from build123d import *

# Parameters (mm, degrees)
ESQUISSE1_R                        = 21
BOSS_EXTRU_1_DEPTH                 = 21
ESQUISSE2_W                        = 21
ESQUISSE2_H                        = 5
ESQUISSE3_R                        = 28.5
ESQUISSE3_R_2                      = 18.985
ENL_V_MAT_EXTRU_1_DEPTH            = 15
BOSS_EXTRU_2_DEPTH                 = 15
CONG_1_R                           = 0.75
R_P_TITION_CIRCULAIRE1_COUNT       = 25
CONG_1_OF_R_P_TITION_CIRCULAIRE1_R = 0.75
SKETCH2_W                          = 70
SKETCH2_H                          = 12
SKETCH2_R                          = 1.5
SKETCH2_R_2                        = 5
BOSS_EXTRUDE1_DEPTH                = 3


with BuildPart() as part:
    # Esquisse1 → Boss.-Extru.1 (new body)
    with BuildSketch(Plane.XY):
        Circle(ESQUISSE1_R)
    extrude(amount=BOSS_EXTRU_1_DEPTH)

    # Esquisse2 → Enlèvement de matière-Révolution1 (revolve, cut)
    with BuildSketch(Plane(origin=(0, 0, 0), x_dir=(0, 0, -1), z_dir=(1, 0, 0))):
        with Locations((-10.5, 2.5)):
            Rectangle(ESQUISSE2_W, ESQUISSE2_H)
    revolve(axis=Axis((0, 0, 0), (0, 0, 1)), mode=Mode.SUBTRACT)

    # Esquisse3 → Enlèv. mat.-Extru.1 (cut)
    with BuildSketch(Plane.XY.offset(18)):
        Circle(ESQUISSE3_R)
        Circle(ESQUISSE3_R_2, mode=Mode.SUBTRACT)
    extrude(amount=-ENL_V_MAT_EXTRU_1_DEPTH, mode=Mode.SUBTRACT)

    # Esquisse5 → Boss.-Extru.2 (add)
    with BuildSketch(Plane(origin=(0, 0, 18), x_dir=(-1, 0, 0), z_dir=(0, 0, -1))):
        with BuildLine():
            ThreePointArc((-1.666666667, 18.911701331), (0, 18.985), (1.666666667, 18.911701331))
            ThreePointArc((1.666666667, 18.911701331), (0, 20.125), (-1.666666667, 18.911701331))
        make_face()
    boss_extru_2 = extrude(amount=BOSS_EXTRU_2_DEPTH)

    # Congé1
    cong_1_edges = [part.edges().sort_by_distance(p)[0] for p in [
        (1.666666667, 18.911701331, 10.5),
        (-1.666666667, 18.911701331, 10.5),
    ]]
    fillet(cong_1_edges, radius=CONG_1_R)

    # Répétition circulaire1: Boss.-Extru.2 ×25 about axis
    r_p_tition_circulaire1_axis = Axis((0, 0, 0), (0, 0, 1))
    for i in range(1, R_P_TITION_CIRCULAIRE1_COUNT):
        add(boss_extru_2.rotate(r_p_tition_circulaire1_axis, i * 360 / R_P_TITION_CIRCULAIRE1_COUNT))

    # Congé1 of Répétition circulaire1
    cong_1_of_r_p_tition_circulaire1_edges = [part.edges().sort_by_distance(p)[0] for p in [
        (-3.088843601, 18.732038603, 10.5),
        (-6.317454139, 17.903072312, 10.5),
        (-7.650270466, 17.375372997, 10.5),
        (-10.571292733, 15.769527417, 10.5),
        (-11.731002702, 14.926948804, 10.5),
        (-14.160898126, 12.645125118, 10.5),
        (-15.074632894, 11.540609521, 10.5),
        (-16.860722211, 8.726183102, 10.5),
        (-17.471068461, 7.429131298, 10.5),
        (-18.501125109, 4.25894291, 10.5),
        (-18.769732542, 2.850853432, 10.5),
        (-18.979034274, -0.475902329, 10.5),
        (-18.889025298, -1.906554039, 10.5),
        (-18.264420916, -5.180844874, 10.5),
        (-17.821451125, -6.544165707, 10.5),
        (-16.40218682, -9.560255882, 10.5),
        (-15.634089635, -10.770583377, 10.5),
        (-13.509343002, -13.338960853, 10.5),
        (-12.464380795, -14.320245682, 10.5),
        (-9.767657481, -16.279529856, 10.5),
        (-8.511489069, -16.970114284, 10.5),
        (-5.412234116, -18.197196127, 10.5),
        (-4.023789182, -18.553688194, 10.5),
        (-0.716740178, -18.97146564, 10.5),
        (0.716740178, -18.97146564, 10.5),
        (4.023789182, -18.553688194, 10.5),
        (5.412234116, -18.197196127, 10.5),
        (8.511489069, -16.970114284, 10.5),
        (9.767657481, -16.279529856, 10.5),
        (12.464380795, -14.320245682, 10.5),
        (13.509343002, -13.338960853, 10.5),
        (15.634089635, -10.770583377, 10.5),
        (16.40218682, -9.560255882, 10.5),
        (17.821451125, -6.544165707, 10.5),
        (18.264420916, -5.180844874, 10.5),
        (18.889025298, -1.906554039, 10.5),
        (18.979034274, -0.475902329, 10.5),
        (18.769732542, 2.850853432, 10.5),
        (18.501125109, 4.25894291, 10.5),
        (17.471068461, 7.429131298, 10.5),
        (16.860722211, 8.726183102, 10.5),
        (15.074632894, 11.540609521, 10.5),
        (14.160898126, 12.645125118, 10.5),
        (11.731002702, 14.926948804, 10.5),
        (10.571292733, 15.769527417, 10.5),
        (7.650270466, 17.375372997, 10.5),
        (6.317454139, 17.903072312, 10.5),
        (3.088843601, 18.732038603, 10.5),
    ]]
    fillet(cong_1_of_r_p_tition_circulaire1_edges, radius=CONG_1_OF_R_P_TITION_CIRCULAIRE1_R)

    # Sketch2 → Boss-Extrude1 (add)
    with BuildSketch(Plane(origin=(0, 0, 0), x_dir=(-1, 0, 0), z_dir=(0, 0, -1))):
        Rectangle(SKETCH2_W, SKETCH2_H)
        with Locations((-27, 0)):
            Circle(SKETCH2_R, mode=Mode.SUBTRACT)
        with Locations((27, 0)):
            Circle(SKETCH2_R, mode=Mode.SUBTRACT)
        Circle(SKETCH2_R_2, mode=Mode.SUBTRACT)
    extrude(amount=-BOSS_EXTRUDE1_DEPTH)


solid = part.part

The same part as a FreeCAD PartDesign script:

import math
import FreeCAD as App
import Part
import Sketcher

V = App.Vector
Q = App.Units.Quantity


def edges_at(feature, points):
    """Names of the edges that pass closest to the given points."""
    edges = feature.Shape.Edges
    near = lambda p: min(range(len(edges)), key=lambda i: edges[i].distToShape(Part.Vertex(*p))[0])
    return sorted({f"Edge{near(p) + 1}" for p in points})

doc = App.newDocument("Part")
body = doc.addObject("PartDesign::Body", "Body")

# Sketch on XY plane
sketch1 = body.newObject("Sketcher::SketchObject", "Sketch")
sketch1.AttachmentSupport = (doc.getObject("XY_Plane"), [""])
sketch1.MapMode = "FlatFace"
sketch1.addGeometry(Part.Circle(V(0, 0, 0), V(0, 0, 1), 21), False)
sketch1.addConstraint([
    Sketcher.Constraint("Coincident", 0, 3, -1, 1),
    Sketcher.Constraint("Diameter", 0, Q("42 mm")),
])
pad1 = body.newObject("PartDesign::Pad", "Pad")
pad1.Profile = sketch1
pad1.Length = 21

# Sketch on YZ plane
sketch2 = body.newObject("Sketcher::SketchObject", "Sketch001")
sketch2.AttachmentSupport = (doc.getObject("YZ_Plane"), [""])
sketch2.MapMode = "FlatFace"
sketch2.addGeometry([
    Part.LineSegment(V(5, 21, 0), V(0, 21, 0)),
    Part.LineSegment(V(0, 21, 0), V(0, 0, 0)),
    Part.LineSegment(V(0, 0, 0), V(5, 0, 0)),
    Part.LineSegment(V(5, 0, 0), V(5, 21, 0)),
], False)
sketch2.addConstraint([
    Sketcher.Constraint("Coincident", 0, 2, 1, 1),
    Sketcher.Constraint("Coincident", 1, 2, 2, 1),
    Sketcher.Constraint("Coincident", 2, 2, 3, 1),
    Sketcher.Constraint("Coincident", 3, 2, 0, 1),
    Sketcher.Constraint("Horizontal", 0),
    Sketcher.Constraint("Vertical", 1),
    Sketcher.Constraint("Horizontal", 2),
    Sketcher.Constraint("Vertical", 3),
    Sketcher.Constraint("Coincident", 1, 2, -1, 1),
    Sketcher.Constraint("DistanceX", 0, 2, 0, 1, Q("5 mm")),
    Sketcher.Constraint("DistanceY", 1, 2, 1, 1, Q("21 mm")),
])
groove = body.newObject("PartDesign::Groove", "Groove")
groove.Profile = sketch2
groove.ReferenceAxis = (sketch2, ["V_Axis"])
groove.Angle = 360

# Sketch on XY plane
sketch3 = body.newObject("Sketcher::SketchObject", "Sketch002")
sketch3.AttachmentSupport = (doc.getObject("XY_Plane"), [""])
sketch3.MapMode = "FlatFace"
sketch3.AttachmentOffset = App.Placement(V(0, 0, 18), App.Rotation())
sketch3.addGeometry([
    Part.Circle(V(0, 0, 0), V(0, 0, 1), 28),
    Part.Circle(V(0, 0, 0), V(0, 0, 1), 19),
], False)
sketch3.addConstraint([
    Sketcher.Constraint("Coincident", 0, 3, -1, 1),
    Sketcher.Constraint("Coincident", 1, 3, -1, 1),
    Sketcher.Constraint("Diameter", 0, Q("57 mm")),
    Sketcher.Constraint("Diameter", 1, Q("37.97 mm")),
])
pocket1 = body.newObject("PartDesign::Pocket", "Pocket")
pocket1.Profile = sketch3
pocket1.Length = 15

# Sketch on XY plane
sketch4 = body.newObject("Sketcher::SketchObject", "Sketch003")
sketch4.AttachmentSupport = (doc.getObject("XY_Plane"), [""])
sketch4.MapMode = "FlatFace"
sketch4.AttachmentOffset = App.Placement(V(0, 0, 18), App.Rotation())
sketch4.addGeometry([
    Part.ArcOfCircle(Part.Circle(V(0, 0, 0), V(0, 0, 1), 19), math.radians(84.96), math.radians(95.04)),
    Part.ArcOfCircle(Part.Circle(V(0, 18.4, 0), V(0, 0, 1), 1.8), math.radians(18), math.radians(162)),
], False)
sketch4.addConstraint([
    Sketcher.Constraint("Coincident", 0, 1, 1, 1),
    Sketcher.Constraint("Coincident", 1, 2, 0, 2),
    Sketcher.Constraint("Coincident", 0, 3, -1, 1),
    Sketcher.Constraint("PointOnObject", 1, 3, -2),
    Sketcher.Constraint("Radius", 0, Q("18.985 mm")),
    Sketcher.Constraint("Radius", 1, Q("1.751371 mm")),
    Sketcher.Constraint("DistanceY", -1, 1, 0, 1, Q("18.911701 mm")),
])
pad2 = body.newObject("PartDesign::Pad", "Pad001")
pad2.Profile = sketch4
pad2.Length = 15
pad2.Reversed = True
doc.recompute()

fillet = body.newObject("PartDesign::Fillet", "Fillet")
fillet.Base = (pad2, edges_at(pad2, [(1.667, 18.912, 10.5), (-1.667, 18.912, 10.5)]))
fillet.Radius = 0.75
doc.recompute()

polarpattern = body.newObject("PartDesign::PolarPattern", "PolarPattern")
polarpattern.Originals = [pad2]
polarpattern.Axis = (doc.getObject("Z_Axis"), [""])
polarpattern.Angle = 360
polarpattern.Occurrences = 25
body.Tip = polarpattern
doc.recompute()

fillet2 = body.newObject("PartDesign::Fillet", "Fillet001")
fillet2.Base = (polarpattern, edges_at(polarpattern, [
    (-3.089, 18.732, 10.5),
    (-6.317, 17.903, 10.5),
    (-7.65, 17.375, 10.5),
    (-10.571, 15.77, 10.5),
    (-11.731, 14.927, 10.5),
    (-14.161, 12.645, 10.5),
    (-15.075, 11.541, 10.5),
    (-16.861, 8.726, 10.5),
    (-17.471, 7.429, 10.5),
    (-18.501, 4.259, 10.5),
    (-18.77, 2.851, 10.5),
    (-18.979, -0.476, 10.5),
    (-18.889, -1.907, 10.5),
    (-18.264, -5.181, 10.5),
    (-17.821, -6.544, 10.5),
    (-16.402, -9.56, 10.5),
    (-15.634, -10.771, 10.5),
    (-13.509, -13.339, 10.5),
    (-12.464, -14.32, 10.5),
    (-9.768, -16.28, 10.5),
    (-8.511, -16.97, 10.5),
    (-5.412, -18.197, 10.5),
    (-4.024, -18.554, 10.5),
    (-0.717, -18.971, 10.5),
    (0.717, -18.971, 10.5),
    (4.024, -18.554, 10.5),
    (5.412, -18.197, 10.5),
    (8.511, -16.97, 10.5),
    (9.768, -16.28, 10.5),
    (12.464, -14.32, 10.5),
    (13.509, -13.339, 10.5),
    (15.634, -10.771, 10.5),
    (16.402, -9.56, 10.5),
    (17.821, -6.544, 10.5),
    (18.264, -5.181, 10.5),
    (18.889, -1.907, 10.5),
    (18.979, -0.476, 10.5),
    (18.77, 2.851, 10.5),
    (18.501, 4.259, 10.5),
    (17.471, 7.429, 10.5),
    (16.861, 8.726, 10.5),
    (15.075, 11.541, 10.5),
    (14.161, 12.645, 10.5),
    (11.731, 14.927, 10.5),
    (10.571, 15.77, 10.5),
    (7.65, 17.375, 10.5),
    (6.317, 17.903, 10.5),
    (3.089, 18.732, 10.5),
]))
fillet2.Radius = 0.75

# Sketch on XY plane
sketch5 = body.newObject("Sketcher::SketchObject", "Sketch004")
sketch5.AttachmentSupport = (doc.getObject("XY_Plane"), [""])
sketch5.MapMode = "FlatFace"
sketch5.addGeometry([
    Part.LineSegment(V(35, 6, 0), V(35, -6, 0)),  # 0
    Part.LineSegment(V(35, -6, 0), V(-35, -6, 0)),  # 1
    Part.LineSegment(V(-35, -6, 0), V(-35, 6, 0)),  # 2
    Part.LineSegment(V(-35, 6, 0), V(35, 6, 0)),  # 3
    Part.Circle(V(27, 0, 0), V(0, 0, 1), 1.5),  # 4
    Part.Circle(V(0, 0, 0), V(0, 0, 1), 5),  # 5
    Part.Circle(V(-27, 0, 0), V(0, 0, 1), 1.5),  # 6
], False)
sketch5.addConstraint([
    Sketcher.Constraint("Coincident", 0, 2, 1, 1),
    Sketcher.Constraint("Coincident", 1, 2, 2, 1),
    Sketcher.Constraint("Coincident", 2, 2, 3, 1),
    Sketcher.Constraint("Coincident", 3, 2, 0, 1),
    Sketcher.Constraint("Vertical", 0),
    Sketcher.Constraint("Horizontal", 1),
    Sketcher.Constraint("Vertical", 2),
    Sketcher.Constraint("Horizontal", 3),
    Sketcher.Constraint("Coincident", 5, 3, -1, 1),
    Sketcher.Constraint("Equal", 4, 6),
    Sketcher.Constraint("Symmetric", 4, 3, 6, 3, -1, 1),
    Sketcher.Constraint("Symmetric", 0, 2, 2, 2, -1, 1),
    Sketcher.Constraint("PointOnObject", 4, 3, -1),
    Sketcher.Constraint("Diameter", 4, Q("3 mm")),
    Sketcher.Constraint("Diameter", 5, Q("10 mm")),
    Sketcher.Constraint("DistanceX", 1, 2, 1, 1, Q("70 mm")),
    Sketcher.Constraint("DistanceY", 0, 2, 0, 1, Q("12 mm")),
    Sketcher.Constraint("DistanceX", -1, 1, 4, 3, Q("27 mm")),
])
pad3 = body.newObject("PartDesign::Pad", "Pad002")
pad3.Profile = sketch5
pad3.Length = 3

doc.recompute()
